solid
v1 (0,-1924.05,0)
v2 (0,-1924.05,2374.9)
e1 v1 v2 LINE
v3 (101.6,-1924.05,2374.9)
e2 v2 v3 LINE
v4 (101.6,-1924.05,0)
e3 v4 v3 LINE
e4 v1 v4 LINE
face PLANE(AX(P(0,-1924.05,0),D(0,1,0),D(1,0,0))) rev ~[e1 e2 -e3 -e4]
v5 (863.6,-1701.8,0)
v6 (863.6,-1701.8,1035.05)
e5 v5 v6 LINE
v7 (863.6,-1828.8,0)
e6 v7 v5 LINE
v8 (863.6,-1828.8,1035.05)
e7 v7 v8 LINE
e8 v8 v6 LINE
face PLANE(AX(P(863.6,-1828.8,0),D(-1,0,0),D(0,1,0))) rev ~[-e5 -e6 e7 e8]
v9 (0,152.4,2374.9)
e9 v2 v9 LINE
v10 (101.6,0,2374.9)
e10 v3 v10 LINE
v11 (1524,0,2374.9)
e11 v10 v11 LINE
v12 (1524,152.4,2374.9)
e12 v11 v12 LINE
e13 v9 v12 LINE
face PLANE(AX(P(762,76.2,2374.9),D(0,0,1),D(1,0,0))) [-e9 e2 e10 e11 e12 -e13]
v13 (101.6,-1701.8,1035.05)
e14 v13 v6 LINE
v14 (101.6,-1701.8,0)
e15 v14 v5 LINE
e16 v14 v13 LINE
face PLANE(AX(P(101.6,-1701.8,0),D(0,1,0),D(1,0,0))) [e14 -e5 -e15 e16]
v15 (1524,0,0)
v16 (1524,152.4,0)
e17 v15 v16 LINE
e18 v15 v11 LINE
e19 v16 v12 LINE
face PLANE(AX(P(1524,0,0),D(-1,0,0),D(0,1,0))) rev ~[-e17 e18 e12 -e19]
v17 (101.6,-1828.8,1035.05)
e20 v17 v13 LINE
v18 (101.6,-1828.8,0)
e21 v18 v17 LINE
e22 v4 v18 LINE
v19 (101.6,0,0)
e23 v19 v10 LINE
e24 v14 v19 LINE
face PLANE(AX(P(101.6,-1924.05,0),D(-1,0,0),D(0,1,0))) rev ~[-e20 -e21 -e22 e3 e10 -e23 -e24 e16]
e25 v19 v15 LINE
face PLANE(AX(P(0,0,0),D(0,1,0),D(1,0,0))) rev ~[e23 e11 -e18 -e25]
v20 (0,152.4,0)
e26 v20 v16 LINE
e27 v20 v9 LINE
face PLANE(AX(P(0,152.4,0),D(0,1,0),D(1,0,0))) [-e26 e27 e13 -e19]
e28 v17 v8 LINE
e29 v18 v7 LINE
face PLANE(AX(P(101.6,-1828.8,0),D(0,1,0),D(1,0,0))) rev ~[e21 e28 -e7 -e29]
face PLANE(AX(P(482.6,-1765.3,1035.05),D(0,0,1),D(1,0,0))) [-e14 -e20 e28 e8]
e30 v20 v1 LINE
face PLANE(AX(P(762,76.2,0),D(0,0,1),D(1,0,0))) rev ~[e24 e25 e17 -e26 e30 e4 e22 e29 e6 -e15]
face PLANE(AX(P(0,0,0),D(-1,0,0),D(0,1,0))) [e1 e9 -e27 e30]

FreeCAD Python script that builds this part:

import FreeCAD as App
import Part
import Sketcher
Q = App.Units.Quantity


def add_polygon(sketch, points):
    """Adds a closed chain of lines whose ends are joined by coincident constraints."""
    first, n = sketch.GeometryCount, len(points)
    for a, b in zip(points, points[1:] + points[:1]):
        sketch.addGeometry(Part.LineSegment(App.Vector(*a, 0), App.Vector(*b, 0)), False)
    for i in range(n):
        sketch.addConstraint(Sketcher.Constraint("Coincident", first + i, 2, first + (i + 1) % n, 1))

doc = App.newDocument("Part")
params = doc.addObject("Spreadsheet::Sheet", "Params")
for row, (alias, value) in enumerate([
    ("sketch1_width", "4 in"),
    ("sketch1_height", "75.75 in"),
    ("pad1_length", "93.5 in"),
    ("sketch2_width", "60 in"),
    ("sketch2_height", "6 in"),
    ("pad2_length", "93.5 in"),
    ("sketch3_width", "30 in"),
    ("sketch3_height", "5 in"),
    ("pad3_length", "40.75 in"),
], start=1):
    params.set(f"A{row}", alias)
    params.set(f"B{row}", "=" + value)
    params.setAlias(f"B{row}", alias)

body = doc.addObject("PartDesign::Body", "Body")

# Sketch on XY plane
sketch1 = body.newObject("Sketcher::SketchObject", "Sketch")
sketch1.AttachmentSupport = (doc.getObject("XY_Plane"), [""])
sketch1.MapMode = "FlatFace"
add_polygon(sketch1, [(0, 0), (0, -1924), (102, -1924), (102, 0)])  # lines 0-3
sketch1.addConstraint([
    Sketcher.Constraint("Vertical", 0),
    Sketcher.Constraint("Horizontal", 1),
    Sketcher.Constraint("Vertical", 2),
    Sketcher.Constraint("Horizontal", 3),
    Sketcher.Constraint("Coincident", 3, 2, -1, 1),
    Sketcher.Constraint("DistanceX", 1, 1, 1, 2, Q("4 in")),
    Sketcher.Constraint("DistanceY", 0, 2, 0, 1, Q("75.75 in")),
])
sketch1.setExpression("Constraints[9]", "Params.sketch1_width")
sketch1.setExpression("Constraints[10]", "Params.sketch1_height")
pad1 = body.newObject("PartDesign::Pad", "Pad")
pad1.Profile = sketch1
pad1.setExpression("Length", "Params.pad1_length")

# Sketch on XY plane
sketch2 = body.newObject("Sketcher::SketchObject", "Sketch001")
sketch2.AttachmentSupport = (doc.getObject("XY_Plane"), [""])
sketch2.MapMode = "FlatFace"
add_polygon(sketch2, [(0, 152), (0, 0), (1524, 0), (1524, 152)])  # lines 0-3
sketch2.addConstraint([
    Sketcher.Constraint("Vertical", 0),
    Sketcher.Constraint("Horizontal", 1),
    Sketcher.Constraint("Vertical", 2),
    Sketcher.Constraint("Horizontal", 3),
    Sketcher.Constraint("Coincident", 0, 2, -1, 1),
    Sketcher.Constraint("DistanceX", 1, 1, 1, 2, Q("60 in")),
    Sketcher.Constraint("DistanceY", 0, 2, 0, 1, Q("6 in")),
])
sketch2.setExpression("Constraints[9]", "Params.sketch2_width")
sketch2.setExpression("Constraints[10]", "Params.sketch2_height")
pad2 = body.newObject("PartDesign::Pad", "Pad001")
pad2.Profile = sketch2
pad2.setExpression("Length", "Params.pad2_length")

# Sketch on XY plane
sketch3 = body.newObject("Sketcher::SketchObject", "Sketch002")
sketch3.AttachmentSupport = (doc.getObject("XY_Plane"), [""])
sketch3.MapMode = "FlatFace"
add_polygon(sketch3, [(102, -1702), (102, -1829), (864, -1829), (864, -1702)])  # lines 0-3
sketch3.addConstraint([
    Sketcher.Constraint("Vertical", 0),
    Sketcher.Constraint("Horizontal", 1),
    Sketcher.Constraint("Vertical", 2),
    Sketcher.Constraint("Horizontal", 3),
    Sketcher.Constraint("DistanceX", 1, 1, 1, 2, Q("30 in")),
    Sketcher.Constraint("DistanceY", 0, 2, 0, 1, Q("5 in")),
    Sketcher.Constraint("DistanceX", -1, 1, 0, 2, Q("4 in")),
    Sketcher.Constraint("DistanceY", 0, 2, -1, 1, Q("72 in")),
])
sketch3.setExpression("Constraints[8]", "Params.sketch3_width")
sketch3.setExpression("Constraints[9]", "Params.sketch3_height")
pad3 = body.newObject("PartDesign::Pad", "Pad002")
pad3.Profile = sketch3
pad3.setExpression("Length", "Params.pad3_length")

doc.recompute()
